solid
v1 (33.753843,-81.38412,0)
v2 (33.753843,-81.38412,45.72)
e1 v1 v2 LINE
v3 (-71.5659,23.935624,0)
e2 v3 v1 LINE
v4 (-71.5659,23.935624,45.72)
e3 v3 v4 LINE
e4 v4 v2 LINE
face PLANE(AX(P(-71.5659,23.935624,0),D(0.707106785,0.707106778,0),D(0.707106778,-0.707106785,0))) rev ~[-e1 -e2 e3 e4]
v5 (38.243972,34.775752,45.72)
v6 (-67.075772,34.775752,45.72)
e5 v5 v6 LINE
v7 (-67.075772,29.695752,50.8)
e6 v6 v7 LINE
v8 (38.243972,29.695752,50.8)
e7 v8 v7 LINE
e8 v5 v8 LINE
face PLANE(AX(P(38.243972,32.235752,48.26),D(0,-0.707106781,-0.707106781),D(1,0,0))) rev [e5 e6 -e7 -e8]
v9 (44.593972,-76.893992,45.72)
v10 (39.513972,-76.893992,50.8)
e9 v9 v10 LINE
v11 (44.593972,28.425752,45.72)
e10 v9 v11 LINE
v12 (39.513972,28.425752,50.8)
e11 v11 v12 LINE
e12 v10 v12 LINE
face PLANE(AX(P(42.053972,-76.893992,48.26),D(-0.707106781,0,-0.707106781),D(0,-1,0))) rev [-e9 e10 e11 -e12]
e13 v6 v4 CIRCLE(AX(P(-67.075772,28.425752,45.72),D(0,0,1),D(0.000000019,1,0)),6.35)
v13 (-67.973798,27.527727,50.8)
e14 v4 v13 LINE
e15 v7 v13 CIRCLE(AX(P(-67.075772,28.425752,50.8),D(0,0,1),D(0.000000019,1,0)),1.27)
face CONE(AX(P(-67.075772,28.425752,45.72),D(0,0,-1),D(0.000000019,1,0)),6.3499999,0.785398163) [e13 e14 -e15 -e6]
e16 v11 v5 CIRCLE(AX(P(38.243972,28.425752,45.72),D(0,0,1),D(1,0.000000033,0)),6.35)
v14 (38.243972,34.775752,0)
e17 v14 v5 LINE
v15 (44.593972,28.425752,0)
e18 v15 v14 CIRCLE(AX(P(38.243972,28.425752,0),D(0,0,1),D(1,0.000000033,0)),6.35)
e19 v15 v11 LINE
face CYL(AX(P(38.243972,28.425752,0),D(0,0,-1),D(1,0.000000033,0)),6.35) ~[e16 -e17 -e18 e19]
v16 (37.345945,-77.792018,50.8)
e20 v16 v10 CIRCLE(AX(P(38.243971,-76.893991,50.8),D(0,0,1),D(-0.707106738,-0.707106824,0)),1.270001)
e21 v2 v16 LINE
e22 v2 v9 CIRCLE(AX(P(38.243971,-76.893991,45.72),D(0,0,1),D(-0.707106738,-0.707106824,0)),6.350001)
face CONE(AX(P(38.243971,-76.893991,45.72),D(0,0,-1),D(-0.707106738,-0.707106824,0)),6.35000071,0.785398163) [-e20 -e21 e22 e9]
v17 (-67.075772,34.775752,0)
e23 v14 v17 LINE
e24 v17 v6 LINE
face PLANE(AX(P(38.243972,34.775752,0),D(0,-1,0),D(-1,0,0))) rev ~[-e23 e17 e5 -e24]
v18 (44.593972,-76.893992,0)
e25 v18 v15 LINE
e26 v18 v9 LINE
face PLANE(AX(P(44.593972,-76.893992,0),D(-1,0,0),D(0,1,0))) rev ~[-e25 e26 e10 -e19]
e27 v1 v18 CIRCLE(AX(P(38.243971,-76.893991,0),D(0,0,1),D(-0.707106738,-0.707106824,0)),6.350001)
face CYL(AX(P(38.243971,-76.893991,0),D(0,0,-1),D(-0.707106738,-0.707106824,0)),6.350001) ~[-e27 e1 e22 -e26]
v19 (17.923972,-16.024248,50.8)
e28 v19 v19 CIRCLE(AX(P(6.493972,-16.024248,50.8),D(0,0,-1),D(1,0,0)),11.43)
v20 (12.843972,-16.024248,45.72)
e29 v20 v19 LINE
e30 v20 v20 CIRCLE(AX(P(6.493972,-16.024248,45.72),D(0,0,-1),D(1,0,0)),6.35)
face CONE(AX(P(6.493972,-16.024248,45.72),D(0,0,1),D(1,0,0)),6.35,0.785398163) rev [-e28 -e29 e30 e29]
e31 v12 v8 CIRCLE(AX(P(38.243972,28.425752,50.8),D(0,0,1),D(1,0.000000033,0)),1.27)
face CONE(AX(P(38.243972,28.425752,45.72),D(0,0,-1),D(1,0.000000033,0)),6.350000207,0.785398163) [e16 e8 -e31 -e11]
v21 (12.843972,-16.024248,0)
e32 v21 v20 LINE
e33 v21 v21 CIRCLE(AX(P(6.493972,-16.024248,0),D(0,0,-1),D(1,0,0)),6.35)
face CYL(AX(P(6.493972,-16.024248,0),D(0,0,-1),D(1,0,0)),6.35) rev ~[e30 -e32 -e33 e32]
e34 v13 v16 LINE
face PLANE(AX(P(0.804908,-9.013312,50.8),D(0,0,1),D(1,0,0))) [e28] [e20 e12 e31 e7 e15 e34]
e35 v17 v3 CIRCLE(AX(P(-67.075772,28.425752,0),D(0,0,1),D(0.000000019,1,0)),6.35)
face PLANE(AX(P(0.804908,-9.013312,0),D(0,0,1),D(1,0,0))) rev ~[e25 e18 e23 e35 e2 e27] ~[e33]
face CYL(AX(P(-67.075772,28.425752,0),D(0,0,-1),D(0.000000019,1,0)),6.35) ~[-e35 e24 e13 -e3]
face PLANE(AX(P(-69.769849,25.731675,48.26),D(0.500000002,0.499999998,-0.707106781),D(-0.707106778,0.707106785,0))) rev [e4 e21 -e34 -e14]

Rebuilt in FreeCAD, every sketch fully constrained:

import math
import FreeCAD as App
import Part
import Sketcher
from FreeCAD import Vector
Q = App.Units.Quantity


def edges_at(feature, points):
    """Names of the edges that pass closest to the given points."""
    edges = feature.Shape.Edges
    near = lambda p: min(range(len(edges)), key=lambda i: edges[i].distToShape(Part.Vertex(*p))[0])
    return sorted({f"Edge{near(p) + 1}" for p in points})

doc = App.newDocument("Part")
body = doc.addObject("PartDesign::Body", "Body")

sketch1 = body.newObject("Sketcher::SketchObject", "Sketch")
sketch1.AttachmentSupport = (doc.getObject("XY_Plane"), [""])
sketch1.MapMode = "FlatFace"
sketch1.addGeometry([
    Part.LineSegment(Vector(38, 35, 0), Vector(-67, 35, 0)),
    Part.ArcOfCircle(Part.Circle(Vector(-67, 28, 0), Vector(0, 0, 1), 6), math.radians(90), math.radians(225)),
    Part.LineSegment(Vector(-72, 24, 0), Vector(34, -81, 0)),
    Part.ArcOfCircle(Part.Circle(Vector(38, -77, 0), Vector(0, 0, 1), 6), math.radians(-135), math.radians(0)),
    Part.LineSegment(Vector(45, -77, 0), Vector(45, 28, 0)),
    Part.ArcOfCircle(Part.Circle(Vector(38, 28, 0), Vector(0, 0, 1), 6), math.radians(0), math.radians(90)),
    Part.Circle(Vector(6, -16, 0), Vector(0, 0, 1), 6),
], False)
sketch1.addConstraint([
    Sketcher.Constraint("Tangent", 0, 2, 1, 1),
    Sketcher.Constraint("Tangent", 1, 2, 2, 1),
    Sketcher.Constraint("Tangent", 2, 2, 3, 1),
    Sketcher.Constraint("Tangent", 3, 2, 4, 1),
    Sketcher.Constraint("Tangent", 4, 2, 5, 1),
    Sketcher.Constraint("Tangent", 5, 2, 0, 1),
    Sketcher.Constraint("Horizontal", 0),
    Sketcher.Constraint("Vertical", 4),
    Sketcher.Constraint("Equal", 1, 3),
    Sketcher.Constraint("Equal", 3, 5),
    Sketcher.Constraint("Equal", 5, 6),
    Sketcher.Constraint("Equal", 0, 4),
    Sketcher.Constraint("Diameter", 6, Q("0.5 in")),
    Sketcher.Constraint("DistanceY", 6, 3, 0, 2, Q("2 in")),
    Sketcher.Constraint("DistanceX", 6, 3, 3, 2, Q("1.5 in")),
    Sketcher.Constraint("DistanceX", 1, 2, -1, 1, 71.5659),
    Sketcher.Constraint("Distance", 2, 148.94461),
    Sketcher.Constraint("DistanceY", 3, 3, -1, 1, 76.893991),
])
pad1 = body.newObject("PartDesign::Pad", "Pad")
pad1.Profile = sketch1
pad1.Length = Q("2 in")
doc.recompute()

chamfer = body.newObject("PartDesign::Chamfer", "Chamfer")
chamfer.Base = (pad1, edges_at(pad1, [(44.594, -24.234, 50.8), (0.144, -16.024, 50.8)]))
chamfer.Size = Q("0.2 in")

doc.recompute()
